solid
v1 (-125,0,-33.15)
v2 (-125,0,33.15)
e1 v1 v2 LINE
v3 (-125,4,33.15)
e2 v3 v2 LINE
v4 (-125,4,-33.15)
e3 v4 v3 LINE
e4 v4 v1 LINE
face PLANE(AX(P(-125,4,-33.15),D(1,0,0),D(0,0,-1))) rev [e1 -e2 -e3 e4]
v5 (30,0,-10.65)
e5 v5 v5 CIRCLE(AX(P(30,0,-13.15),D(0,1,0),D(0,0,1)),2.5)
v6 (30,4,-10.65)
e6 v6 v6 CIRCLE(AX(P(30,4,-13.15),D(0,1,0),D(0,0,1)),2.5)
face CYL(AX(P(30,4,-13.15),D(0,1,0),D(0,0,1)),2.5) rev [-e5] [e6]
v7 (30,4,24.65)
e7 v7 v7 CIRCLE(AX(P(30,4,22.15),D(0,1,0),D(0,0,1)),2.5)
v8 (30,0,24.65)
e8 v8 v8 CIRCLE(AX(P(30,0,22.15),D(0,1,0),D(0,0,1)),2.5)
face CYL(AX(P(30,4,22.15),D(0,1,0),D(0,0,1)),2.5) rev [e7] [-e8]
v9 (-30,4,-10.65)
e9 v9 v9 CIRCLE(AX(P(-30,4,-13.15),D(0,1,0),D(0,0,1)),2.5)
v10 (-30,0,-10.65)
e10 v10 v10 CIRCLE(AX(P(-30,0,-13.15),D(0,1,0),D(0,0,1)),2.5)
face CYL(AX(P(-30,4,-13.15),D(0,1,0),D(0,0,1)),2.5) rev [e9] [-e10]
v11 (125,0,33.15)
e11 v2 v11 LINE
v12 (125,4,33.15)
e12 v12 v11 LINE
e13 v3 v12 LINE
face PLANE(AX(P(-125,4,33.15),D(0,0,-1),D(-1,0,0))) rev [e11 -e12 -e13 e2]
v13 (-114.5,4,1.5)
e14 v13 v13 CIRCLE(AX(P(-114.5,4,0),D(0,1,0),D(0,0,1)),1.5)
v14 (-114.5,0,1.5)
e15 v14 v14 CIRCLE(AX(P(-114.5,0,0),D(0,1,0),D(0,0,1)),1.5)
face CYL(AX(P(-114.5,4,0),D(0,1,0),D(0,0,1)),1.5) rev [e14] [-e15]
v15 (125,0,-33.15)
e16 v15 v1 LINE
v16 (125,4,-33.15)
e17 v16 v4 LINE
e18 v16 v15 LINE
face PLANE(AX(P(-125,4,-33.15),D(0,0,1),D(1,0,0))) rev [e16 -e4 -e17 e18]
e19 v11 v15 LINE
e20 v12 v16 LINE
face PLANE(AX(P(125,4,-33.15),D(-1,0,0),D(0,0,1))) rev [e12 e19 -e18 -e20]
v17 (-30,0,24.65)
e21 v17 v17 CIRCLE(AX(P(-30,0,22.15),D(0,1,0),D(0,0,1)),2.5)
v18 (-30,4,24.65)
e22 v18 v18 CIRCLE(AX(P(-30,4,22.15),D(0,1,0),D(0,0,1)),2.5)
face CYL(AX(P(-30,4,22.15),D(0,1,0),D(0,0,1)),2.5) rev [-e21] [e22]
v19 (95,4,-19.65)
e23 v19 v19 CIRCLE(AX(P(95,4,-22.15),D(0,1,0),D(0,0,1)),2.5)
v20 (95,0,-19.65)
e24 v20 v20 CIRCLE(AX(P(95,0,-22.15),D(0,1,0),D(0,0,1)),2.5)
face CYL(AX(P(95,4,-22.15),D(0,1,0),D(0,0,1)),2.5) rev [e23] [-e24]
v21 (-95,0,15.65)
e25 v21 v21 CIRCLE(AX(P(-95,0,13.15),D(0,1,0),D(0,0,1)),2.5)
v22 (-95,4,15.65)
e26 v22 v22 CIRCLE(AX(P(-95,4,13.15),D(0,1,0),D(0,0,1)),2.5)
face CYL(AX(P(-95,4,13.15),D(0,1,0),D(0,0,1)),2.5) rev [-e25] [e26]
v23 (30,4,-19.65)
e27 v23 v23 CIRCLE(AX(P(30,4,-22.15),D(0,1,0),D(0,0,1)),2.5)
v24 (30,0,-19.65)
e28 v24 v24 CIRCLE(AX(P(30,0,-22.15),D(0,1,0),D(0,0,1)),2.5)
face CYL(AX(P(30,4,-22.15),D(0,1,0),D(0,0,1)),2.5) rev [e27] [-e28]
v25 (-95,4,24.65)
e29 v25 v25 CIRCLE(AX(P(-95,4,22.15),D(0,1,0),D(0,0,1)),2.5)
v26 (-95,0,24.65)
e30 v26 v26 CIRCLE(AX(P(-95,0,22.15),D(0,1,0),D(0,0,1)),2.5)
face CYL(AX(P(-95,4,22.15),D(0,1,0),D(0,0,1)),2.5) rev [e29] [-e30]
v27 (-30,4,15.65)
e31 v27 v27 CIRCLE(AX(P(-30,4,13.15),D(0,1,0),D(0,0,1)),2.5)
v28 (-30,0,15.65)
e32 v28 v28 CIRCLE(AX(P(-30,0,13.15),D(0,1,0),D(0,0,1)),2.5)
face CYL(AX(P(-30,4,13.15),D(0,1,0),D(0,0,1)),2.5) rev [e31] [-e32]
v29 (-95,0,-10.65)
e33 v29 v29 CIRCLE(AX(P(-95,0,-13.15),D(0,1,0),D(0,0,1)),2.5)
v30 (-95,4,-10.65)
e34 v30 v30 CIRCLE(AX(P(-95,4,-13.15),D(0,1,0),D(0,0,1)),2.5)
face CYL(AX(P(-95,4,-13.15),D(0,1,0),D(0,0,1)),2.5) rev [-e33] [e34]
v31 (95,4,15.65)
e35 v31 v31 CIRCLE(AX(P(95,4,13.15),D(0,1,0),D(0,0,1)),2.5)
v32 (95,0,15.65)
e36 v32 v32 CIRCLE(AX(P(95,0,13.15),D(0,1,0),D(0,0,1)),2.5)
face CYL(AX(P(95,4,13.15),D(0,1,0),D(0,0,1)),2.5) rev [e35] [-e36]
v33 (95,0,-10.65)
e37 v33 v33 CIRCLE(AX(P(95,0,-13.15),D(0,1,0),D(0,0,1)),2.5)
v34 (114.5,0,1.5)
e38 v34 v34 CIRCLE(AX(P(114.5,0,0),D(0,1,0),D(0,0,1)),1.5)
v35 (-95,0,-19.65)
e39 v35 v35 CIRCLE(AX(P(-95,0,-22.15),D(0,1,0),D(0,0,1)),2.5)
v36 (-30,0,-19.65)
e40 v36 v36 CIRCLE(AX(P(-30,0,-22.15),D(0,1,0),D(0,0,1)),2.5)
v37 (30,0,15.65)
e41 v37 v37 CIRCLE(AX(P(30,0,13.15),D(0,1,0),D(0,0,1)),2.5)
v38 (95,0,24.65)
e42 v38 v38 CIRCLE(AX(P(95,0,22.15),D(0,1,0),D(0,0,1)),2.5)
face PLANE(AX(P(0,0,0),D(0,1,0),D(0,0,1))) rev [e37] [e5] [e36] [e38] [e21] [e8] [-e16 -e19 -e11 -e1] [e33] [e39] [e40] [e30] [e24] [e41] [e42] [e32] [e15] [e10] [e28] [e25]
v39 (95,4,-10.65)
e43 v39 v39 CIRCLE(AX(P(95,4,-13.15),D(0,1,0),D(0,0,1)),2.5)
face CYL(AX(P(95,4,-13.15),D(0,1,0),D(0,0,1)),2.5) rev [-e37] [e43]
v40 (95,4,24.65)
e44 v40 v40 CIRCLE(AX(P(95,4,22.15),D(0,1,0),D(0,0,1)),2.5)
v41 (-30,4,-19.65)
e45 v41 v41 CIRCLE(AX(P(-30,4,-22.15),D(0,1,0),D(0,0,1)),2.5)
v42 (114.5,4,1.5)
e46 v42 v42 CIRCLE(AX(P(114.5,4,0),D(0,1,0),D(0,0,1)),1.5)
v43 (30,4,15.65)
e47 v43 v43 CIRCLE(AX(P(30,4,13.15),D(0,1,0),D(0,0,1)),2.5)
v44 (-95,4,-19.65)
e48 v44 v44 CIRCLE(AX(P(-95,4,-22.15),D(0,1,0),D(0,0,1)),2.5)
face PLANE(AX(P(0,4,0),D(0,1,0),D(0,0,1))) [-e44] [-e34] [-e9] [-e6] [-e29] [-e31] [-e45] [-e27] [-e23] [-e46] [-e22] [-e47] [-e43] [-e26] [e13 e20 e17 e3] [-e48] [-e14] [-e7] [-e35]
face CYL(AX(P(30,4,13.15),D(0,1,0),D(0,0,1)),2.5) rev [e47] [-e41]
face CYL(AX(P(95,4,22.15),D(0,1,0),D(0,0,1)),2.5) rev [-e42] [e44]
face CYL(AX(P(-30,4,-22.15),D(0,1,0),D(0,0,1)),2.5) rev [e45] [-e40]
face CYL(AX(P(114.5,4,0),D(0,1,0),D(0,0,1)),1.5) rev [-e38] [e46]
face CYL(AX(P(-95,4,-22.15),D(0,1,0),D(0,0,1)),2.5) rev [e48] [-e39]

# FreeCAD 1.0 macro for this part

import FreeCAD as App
import Part
import Sketcher
from FreeCAD import Vector
Q = App.Units.Quantity


def add_polygon(sketch, points):
    """Adds a closed chain of lines whose ends are joined by coincident constraints."""
    first, n = sketch.GeometryCount, len(points)
    for a, b in zip(points, points[1:] + points[:1]):
        sketch.addGeometry(Part.LineSegment(App.Vector(*a, 0), App.Vector(*b, 0)), False)
    for i in range(n):
        sketch.addConstraint(Sketcher.Constraint("Coincident", first + i, 2, first + (i + 1) % n, 1))

doc = App.newDocument("Part")
body = doc.addObject("PartDesign::Body", "Body")

# Sketch on XZ plane
sketch1 = body.newObject("Sketcher::SketchObject", "Sketch")
sketch1.AttachmentSupport = (doc.getObject("XZ_Plane"), [""])
sketch1.MapMode = "FlatFace"
add_polygon(sketch1, [(-125, -33), (-125, 33), (125, 33), (125, -33)])  # lines 0-3
sketch1.addConstraint([
    Sketcher.Constraint("Vertical", 0),
    Sketcher.Constraint("Horizontal", 1),
    Sketcher.Constraint("Vertical", 2),
    Sketcher.Constraint("Horizontal", 3),
    Sketcher.Constraint("Symmetric", 0, 2, 2, 2, -1, 1),
    Sketcher.Constraint("DistanceX", 1, 1, 1, 2, Q("250 mm")),
    Sketcher.Constraint("DistanceY", 0, 1, 0, 2, Q("66.3 mm")),
])
pad1 = body.newObject("PartDesign::Pad", "Pad")
pad1.Profile = sketch1
pad1.Length = 4
pad1.Reversed = True

# Sketch on YZ plane
sketch2 = body.newObject("Sketcher::SketchObject", "Sketch001")
sketch2.AttachmentSupport = (doc.getObject("YZ_Plane"), [""])
sketch2.MapMode = "FlatFace"
sketch2.AttachmentOffset = App.Placement(Vector(0, 0, -114.5), App.Rotation())
add_polygon(sketch2, [(-96.9, 0), (4, 0), (4, 1.5), (-96, 1.5)])  # lines 0-3
sketch2.addConstraint([
    Sketcher.Constraint("Horizontal", 0),
    Sketcher.Constraint("Vertical", 1),
    Sketcher.Constraint("Horizontal", 2),
    Sketcher.Constraint("PointOnObject", 0, 2, -1),
    Sketcher.Constraint("DistanceX", 2, 2, 2, 1, Q("100 mm")),
    Sketcher.Constraint("Angle", 3, Q("-121 deg")),
    Sketcher.Constraint("DistanceY", 1, 1, 1, 2, Q("1.5 mm")),
    Sketcher.Constraint("DistanceX", -1, 1, 0, 2, Q("4 mm")),
])
groove = body.newObject("PartDesign::Groove", "Groove")
groove.Profile = sketch2
groove.ReferenceAxis = (sketch2, ["H_Axis"])
groove.Angle = 360

# Sketch on YZ plane
sketch3 = body.newObject("Sketcher::SketchObject", "Sketch002")
sketch3.AttachmentSupport = (doc.getObject("YZ_Plane"), [""])
sketch3.MapMode = "FlatFace"
sketch3.AttachmentOffset = App.Placement(Vector(0, 0, -95), App.Rotation())
add_polygon(sketch3, [(-47.5, -22.1), (4, -22.1), (4, -19.6), (-46, -19.6)])  # lines 0-3
sketch3.addGeometry(Part.LineSegment(Vector(4, -22.1, 0), Vector(-47.5, -22.1, 0)), True)  # axis
sketch3.addConstraint([
    Sketcher.Constraint("Horizontal", 0),
    Sketcher.Constraint("Vertical", 1),
    Sketcher.Constraint("Horizontal", 2),
    Sketcher.Constraint("Horizontal", 4),
    Sketcher.Constraint("Coincident", 4, 1, 0, 2),
    Sketcher.Constraint("Equal", 0, 4),
    Sketcher.Constraint("DistanceX", 2, 2, 2, 1, Q("50 mm")),
    Sketcher.Constraint("Angle", 3, Q("-121 deg")),
    Sketcher.Constraint("DistanceY", 1, 1, 1, 2, Q("2.5 mm")),
    Sketcher.Constraint("DistanceX", -1, 1, 0, 2, Q("4 mm")),
    Sketcher.Constraint("DistanceY", 0, 2, -1, 1, Q("22.15 mm")),
])
groove2 = body.newObject("PartDesign::Groove", "Groove001")
groove2.Profile = sketch3
groove2.ReferenceAxis = (sketch3, ["Axis0"])
groove2.Angle = 360
doc.recompute()

linearpattern = body.newObject("PartDesign::LinearPattern", "LinearPattern")
linearpattern.Originals = [groove2]
linearpattern.Direction = (doc.getObject("Z_Axis"), [""])
linearpattern.Mode = "offset"
linearpattern.Offset = 9
linearpattern.Occurrences = 2
body.Tip = linearpattern
doc.recompute()

linearpattern2 = body.newObject("PartDesign::LinearPattern", "LinearPattern001")
linearpattern2.Originals = [groove2]
linearpattern2.Direction = (doc.getObject("X_Axis"), [""])
linearpattern2.Mode = "offset"
linearpattern2.Offset = 65
linearpattern2.Occurrences = 2
body.Tip = linearpattern2

# Sketch on YZ plane
sketch4 = body.newObject("Sketcher::SketchObject", "Sketch003")
sketch4.AttachmentSupport = (doc.getObject("YZ_Plane"), [""])
sketch4.MapMode = "FlatFace"
sketch4.AttachmentOffset = App.Placement(Vector(0, 0, -30), App.Rotation())
add_polygon(sketch4, [(-47.5, -13.2), (4, -13.2), (4, -10.7), (-46, -10.7)])  # lines 0-3
sketch4.addGeometry(Part.LineSegment(Vector(4, -13.2, 0), Vector(-47.5, -13.2, 0)), True)  # axis
sketch4.addConstraint([
    Sketcher.Constraint("Horizontal", 0),
    Sketcher.Constraint("Vertical", 1),
    Sketcher.Constraint("Horizontal", 2),
    Sketcher.Constraint("Horizontal", 4),
    Sketcher.Constraint("Coincident", 4, 1, 0, 2),
    Sketcher.Constraint("Equal", 0, 4),
    Sketcher.Constraint("DistanceX", 2, 2, 2, 1, Q("50 mm")),
    Sketcher.Constraint("Angle", 3, Q("-121 deg")),
    Sketcher.Constraint("DistanceY", 1, 1, 1, 2, Q("2.5 mm")),
    Sketcher.Constraint("DistanceX", -1, 1, 0, 2, Q("4 mm")),
    Sketcher.Constraint("DistanceY", 0, 2, -1, 1, Q("13.15 mm")),
])
groove3 = body.newObject("PartDesign::Groove", "Groove002")
groove3.Profile = sketch4
groove3.ReferenceAxis = (sketch4, ["Axis0"])
groove3.Angle = 360
doc.recompute()

mirrored = body.newObject("PartDesign::Mirrored", "Mirrored")
mirrored.Originals = [groove, groove2]
mirrored.MirrorPlane = (doc.getObject("YZ_Plane"), [""])
body.Tip = mirrored

# Sketch on YZ plane
sketch5 = body.newObject("Sketcher::SketchObject", "Sketch004")
sketch5.AttachmentSupport = (doc.getObject("YZ_Plane"), [""])
sketch5.MapMode = "FlatFace"
sketch5.AttachmentOffset = App.Placement(Vector(0, 0, 95), App.Rotation())
add_polygon(sketch5, [(4, -13.2), (-47.5, -13.2), (-46, -10.7), (4, -10.7)])  # lines 0-3
sketch5.addGeometry(Part.LineSegment(Vector(-47.5, -13.2, 0), Vector(4, -13.2, 0)), True)  # axis
sketch5.addConstraint([
    Sketcher.Constraint("Horizontal", 0),
    Sketcher.Constraint("Horizontal", 2),
    Sketcher.Constraint("Vertical", 3),
    Sketcher.Constraint("Horizontal", 4),
    Sketcher.Constraint("Coincident", 4, 1, 0, 2),
    Sketcher.Constraint("Vertical", 2, 2, 4, 2),
    Sketcher.Constraint("DistanceX", 2, 1, 2, 2, Q("50 mm")),
    Sketcher.Constraint("Angle", 1, Q("59 deg")),
    Sketcher.Constraint("DistanceY", 3, 2, 3, 1, Q("2.5 mm")),
    Sketcher.Constraint("DistanceX", 1, 2, -1, 1, Q("46 mm")),
    Sketcher.Constraint("DistanceY", 0, 2, -1, 1, Q("13.15 mm")),
])
groove4 = body.newObject("PartDesign::Groove", "Groove003")
groove4.Profile = sketch5
groove4.ReferenceAxis = (sketch5, ["Axis0"])
groove4.Angle = 360

# Sketch on YZ plane
sketch6 = body.newObject("Sketcher::SketchObject", "Sketch005")
sketch6.AttachmentSupport = (doc.getObject("YZ_Plane"), [""])
sketch6.MapMode = "FlatFace"
sketch6.AttachmentOffset = App.Placement(Vector(0, 0, 30), App.Rotation())
add_polygon(sketch6, [(4, -22.1), (-47.5, -22.1), (-46, -19.6), (4, -19.6)])  # lines 0-3
sketch6.addGeometry(Part.LineSegment(Vector(-47.5, -22.1, 0), Vector(4, -22.1, 0)), True)  # axis
sketch6.addConstraint([
    Sketcher.Constraint("Horizontal", 0),
    Sketcher.Constraint("Horizontal", 2),
    Sketcher.Constraint("Vertical", 3),
    Sketcher.Constraint("Horizontal", 4),
    Sketcher.Constraint("Coincident", 4, 1, 0, 2),
    Sketcher.Constraint("Vertical", 2, 2, 4, 2),
    Sketcher.Constraint("DistanceX", 2, 1, 2, 2, Q("50 mm")),
    Sketcher.Constraint("Angle", 1, Q("59 deg")),
    Sketcher.Constraint("DistanceY", 3, 2, 3, 1, Q("2.5 mm")),
    Sketcher.Constraint("DistanceX", 1, 2, -1, 1, Q("46 mm")),
    Sketcher.Constraint("DistanceY", 0, 2, -1, 1, Q("22.15 mm")),
])
groove5 = body.newObject("PartDesign::Groove", "Groove004")
groove5.Profile = sketch6
groove5.ReferenceAxis = (sketch6, ["Axis0"])
groove5.Angle = 360

# Sketch on YZ plane
sketch7 = body.newObject("Sketcher::SketchObject", "Sketch006")
sketch7.AttachmentSupport = (doc.getObject("YZ_Plane"), [""])
sketch7.MapMode = "FlatFace"
sketch7.AttachmentOffset = App.Placement(Vector(0, 0, 30), App.Rotation())
add_polygon(sketch7, [(4, -13.2), (-47.5, -13.2), (-46, -10.7), (4, -10.7)])  # lines 0-3
sketch7.addGeometry(Part.LineSegment(Vector(-47.5, -13.2, 0), Vector(4, -13.2, 0)), True)  # axis
sketch7.addConstraint([
    Sketcher.Constraint("Horizontal", 0),
    Sketcher.Constraint("Horizontal", 2),
    Sketcher.Constraint("Vertical", 3),
    Sketcher.Constraint("Horizontal", 4),
    Sketcher.Constraint("Coincident", 4, 1, 0, 2),
    Sketcher.Constraint("Vertical", 2, 2, 4, 2),
    Sketcher.Constraint("DistanceX", 2, 1, 2, 2, Q("50 mm")),
    Sketcher.Constraint("Angle", 1, Q("59 deg")),
    Sketcher.Constraint("DistanceY", 3, 2, 3, 1, Q("2.5 mm")),
    Sketcher.Constraint("DistanceX", 1, 2, -1, 1, Q("46 mm")),
    Sketcher.Constraint("DistanceY", 0, 2, -1, 1, Q("13.15 mm")),
])
groove6 = body.newObject("PartDesign::Groove", "Groove005")
groove6.Profile = sketch7
groove6.ReferenceAxis = (sketch7, ["Axis0"])
groove6.Angle = 360
doc.recompute()

mirrored2 = body.newObject("PartDesign::Mirrored", "Mirrored001")
mirrored2.Originals = [groove2]
mirrored2.MirrorPlane = (doc.getObject("XY_Plane"), [""])
body.Tip = mirrored2

# Sketch on YZ plane
sketch8 = body.newObject("Sketcher::SketchObject", "Sketch007")
sketch8.AttachmentSupport = (doc.getObject("YZ_Plane"), [""])
sketch8.MapMode = "FlatFace"
sketch8.AttachmentOffset = App.Placement(Vector(0, 0, -95), App.Rotation())
add_polygon(sketch8, [(4, 13.2), (-47.5, 13.2), (-46, 10.7), (4, 10.7)])  # lines 0-3
sketch8.addGeometry(Part.LineSegment(Vector(-47.5, 13.2, 0), Vector(4, 13.2, 0)), True)  # axis
sketch8.addConstraint([
    Sketcher.Constraint("Horizontal", 0),
    Sketcher.Constraint("Horizontal", 2),
    Sketcher.Constraint("Vertical", 3),
    Sketcher.Constraint("Horizontal", 4),
    Sketcher.Constraint("Coincident", 4, 1, 0, 2),
    Sketcher.Constraint("Vertical", 2, 2, 4, 2),
    Sketcher.Constraint("DistanceX", 2, 1, 2, 2, Q("50 mm")),
    Sketcher.Constraint("Angle", 1, Q("-59 deg")),
    Sketcher.Constraint("DistanceY", 3, 1, 3, 2, Q("2.5 mm")),
    Sketcher.Constraint("DistanceX", 1, 2, -1, 1, Q("46 mm")),
    Sketcher.Constraint("DistanceY", -1, 1, 0, 2, Q("13.15 mm")),
])
groove7 = body.newObject("PartDesign::Groove", "Groove006")
groove7.Profile = sketch8
groove7.ReferenceAxis = (sketch8, ["Axis0"])
groove7.Angle = 360

# Sketch on YZ plane
sketch9 = body.newObject("Sketcher::SketchObject", "Sketch008")
sketch9.AttachmentSupport = (doc.getObject("YZ_Plane"), [""])
sketch9.MapMode = "FlatFace"
sketch9.AttachmentOffset = App.Placement(Vector(0, 0, -30), App.Rotation())
add_polygon(sketch9, [(4, 22.1), (-47.5, 22.1), (-46, 19.6), (4, 19.6)])  # lines 0-3
sketch9.addGeometry(Part.LineSegment(Vector(-47.5, 22.1, 0), Vector(4, 22.1, 0)), True)  # axis
sketch9.addConstraint([
    Sketcher.Constraint("Horizontal", 0),
    Sketcher.Constraint("Horizontal", 2),
    Sketcher.Constraint("Vertical", 3),
    Sketcher.Constraint("Horizontal", 4),
    Sketcher.Constraint("Coincident", 4, 1, 0, 2),
    Sketcher.Constraint("Vertical", 2, 2, 4, 2),
    Sketcher.Constraint("DistanceX", 2, 1, 2, 2, Q("50 mm")),
    Sketcher.Constraint("Angle", 1, Q("-59 deg")),
    Sketcher.Constraint("DistanceY", 3, 1, 3, 2, Q("2.5 mm")),
    Sketcher.Constraint("DistanceX", 1, 2, -1, 1, Q("46 mm")),
    Sketcher.Constraint("DistanceY", -1, 1, 0, 2, Q("22.15 mm")),
])
groove8 = body.newObject("PartDesign::Groove", "Groove007")
groove8.Profile = sketch9
groove8.ReferenceAxis = (sketch9, ["Axis0"])
groove8.Angle = 360

# Sketch on YZ plane
sketch10 = body.newObject("Sketcher::SketchObject", "Sketch009")
sketch10.AttachmentSupport = (doc.getObject("YZ_Plane"), [""])
sketch10.MapMode = "FlatFace"
sketch10.AttachmentOffset = App.Placement(Vector(0, 0, -30), App.Rotation())
add_polygon(sketch10, [(4, 13.2), (-47.5, 13.2), (-46, 10.7), (4, 10.7)])  # lines 0-3
sketch10.addGeometry(Part.LineSegment(Vector(-47.5, 13.2, 0), Vector(4, 13.2, 0)), True)  # axis
sketch10.addConstraint([
    Sketcher.Constraint("Horizontal", 0),
    Sketcher.Constraint("Horizontal", 2),
    Sketcher.Constraint("Vertical", 3),
    Sketcher.Constraint("Horizontal", 4),
    Sketcher.Constraint("Coincident", 4, 1, 0, 2),
    Sketcher.Constraint("Vertical", 2, 2, 4, 2),
    Sketcher.Constraint("DistanceX", 2, 1, 2, 2, Q("50 mm")),
    Sketcher.Constraint("Angle", 1, Q("-59 deg")),
    Sketcher.Constraint("DistanceY", 3, 1, 3, 2, Q("2.5 mm")),
    Sketcher.Constraint("DistanceX", 1, 2, -1, 1, Q("46 mm")),
    Sketcher.Constraint("DistanceY", -1, 1, 0, 2, Q("13.15 mm")),
])
groove9 = body.newObject("PartDesign::Groove", "Groove008")
groove9.Profile = sketch10
groove9.ReferenceAxis = (sketch10, ["Axis0"])
groove9.Angle = 360

# Sketch on YZ plane
sketch11 = body.newObject("Sketcher::SketchObject", "Sketch010")
sketch11.AttachmentSupport = (doc.getObject("YZ_Plane"), [""])
sketch11.MapMode = "FlatFace"
sketch11.AttachmentOffset = App.Placement(Vector(0, 0, 114.5), App.Rotation())
add_polygon(sketch11, [(-96.9, 0), (4, 0), (4, -1.5), (-96, -1.5)])  # lines 0-3
sketch11.addConstraint([
    Sketcher.Constraint("Horizontal", 0),
    Sketcher.Constraint("Vertical", 1),
    Sketcher.Constraint("Horizontal", 2),
    Sketcher.Constraint("PointOnObject", 0, 2, -1),
    Sketcher.Constraint("DistanceX", 2, 2, 2, 1, Q("100 mm")),
    Sketcher.Constraint("Angle", 3, Q("121 deg")),
    Sketcher.Constraint("DistanceY", 1, 2, 1, 1, Q("1.5 mm")),
    Sketcher.Constraint("DistanceX", -1, 1, 0, 2, Q("4 mm")),
])
groove10 = body.newObject("PartDesign::Groove", "Groove009")
groove10.Profile = sketch11
groove10.ReferenceAxis = (sketch11, ["H_Axis"])
groove10.Angle = 360

# Sketch on YZ plane
sketch12 = body.newObject("Sketcher::SketchObject", "Sketch011")
sketch12.AttachmentSupport = (doc.getObject("YZ_Plane"), [""])
sketch12.MapMode = "FlatFace"
sketch12.AttachmentOffset = App.Placement(Vector(0, 0, 95), App.Rotation())
add_polygon(sketch12, [(-47.5, 22.1), (4, 22.1), (4, 19.6), (-46, 19.6)])  # lines 0-3
sketch12.addGeometry(Part.LineSegment(Vector(4, 22.1, 0), Vector(-47.5, 22.1, 0)), True)  # axis
sketch12.addConstraint([
    Sketcher.Constraint("Horizontal", 0),
    Sketcher.Constraint("Vertical", 1),
    Sketcher.Constraint("Horizontal", 2),
    Sketcher.Constraint("Horizontal", 4),
    Sketcher.Constraint("Coincident", 4, 1, 0, 2),
    Sketcher.Constraint("Equal", 0, 4),
    Sketcher.Constraint("DistanceX", 2, 2, 2, 1, Q("50 mm")),
    Sketcher.Constraint("Angle", 3, Q("121 deg")),
    Sketcher.Constraint("DistanceY", 1, 2, 1, 1, Q("2.5 mm")),
    Sketcher.Constraint("DistanceX", -1, 1, 0, 2, Q("4 mm")),
    Sketcher.Constraint("DistanceY", -1, 1, 0, 2, Q("22.15 mm")),
])
groove11 = body.newObject("PartDesign::Groove", "Groove010")
groove11.Profile = sketch12
groove11.ReferenceAxis = (sketch12, ["Axis0"])
groove11.Angle = 360

# Sketch on YZ plane
sketch13 = body.newObject("Sketcher::SketchObject", "Sketch012")
sketch13.AttachmentSupport = (doc.getObject("YZ_Plane"), [""])
sketch13.MapMode = "FlatFace"
sketch13.AttachmentOffset = App.Placement(Vector(0, 0, 95), App.Rotation())
add_polygon(sketch13, [(-47.5, 13.2), (4, 13.2), (4, 10.7), (-46, 10.7)])  # lines 0-3
sketch13.addGeometry(Part.LineSegment(Vector(4, 13.2, 0), Vector(-47.5, 13.2, 0)), True)  # axis
sketch13.addConstraint([
    Sketcher.Constraint("Horizontal", 0),
    Sketcher.Constraint("Vertical", 1),
    Sketcher.Constraint("Horizontal", 2),
    Sketcher.Constraint("Horizontal", 4),
    Sketcher.Constraint("Coincident", 4, 1, 0, 2),
    Sketcher.Constraint("Equal", 0, 4),
    Sketcher.Constraint("DistanceX", 2, 2, 2, 1, Q("50 mm")),
    Sketcher.Constraint("Angle", 3, Q("121 deg")),
    Sketcher.Constraint("DistanceY", 1, 2, 1, 1, Q("2.5 mm")),
    Sketcher.Constraint("DistanceX", -1, 1, 0, 2, Q("4 mm")),
    Sketcher.Constraint("DistanceY", -1, 1, 0, 2, Q("13.15 mm")),
])
groove12 = body.newObject("PartDesign::Groove", "Groove011")
groove12.Profile = sketch13
groove12.ReferenceAxis = (sketch13, ["Axis0"])
groove12.Angle = 360

# Sketch on YZ plane
sketch14 = body.newObject("Sketcher::SketchObject", "Sketch013")
sketch14.AttachmentSupport = (doc.getObject("YZ_Plane"), [""])
sketch14.MapMode = "FlatFace"
sketch14.AttachmentOffset = App.Placement(Vector(0, 0, 30), App.Rotation())
add_polygon(sketch14, [(-47.5, 22.1), (4, 22.1), (4, 19.6), (-46, 19.6)])  # lines 0-3
sketch14.addGeometry(Part.LineSegment(Vector(4, 22.1, 0), Vector(-47.5, 22.1, 0)), True)  # axis
sketch14.addConstraint([
    Sketcher.Constraint("Horizontal", 0),
    Sketcher.Constraint("Vertical", 1),
    Sketcher.Constraint("Horizontal", 2),
    Sketcher.Constraint("Horizontal", 4),
    Sketcher.Constraint("Coincident", 4, 1, 0, 2),
    Sketcher.Constraint("Equal", 0, 4),
    Sketcher.Constraint("DistanceX", 2, 2, 2, 1, Q("50 mm")),
    Sketcher.Constraint("Angle", 3, Q("121 deg")),
    Sketcher.Constraint("DistanceY", 1, 2, 1, 1, Q("2.5 mm")),
    Sketcher.Constraint("DistanceX", -1, 1, 0, 2, Q("4 mm")),
    Sketcher.Constraint("DistanceY", -1, 1, 0, 2, Q("22.15 mm")),
])
groove13 = body.newObject("PartDesign::Groove", "Groove012")
groove13.Profile = sketch14
groove13.ReferenceAxis = (sketch14, ["Axis0"])
groove13.Angle = 360

# Sketch on YZ plane
sketch15 = body.newObject("Sketcher::SketchObject", "Sketch014")
sketch15.AttachmentSupport = (doc.getObject("YZ_Plane"), [""])
sketch15.MapMode = "FlatFace"
sketch15.AttachmentOffset = App.Placement(Vector(0, 0, 30), App.Rotation())
add_polygon(sketch15, [(-47.5, 13.2), (4, 13.2), (4, 10.7), (-46, 10.7)])  # lines 0-3
sketch15.addGeometry(Part.LineSegment(Vector(4, 13.2, 0), Vector(-47.5, 13.2, 0)), True)  # axis
sketch15.addConstraint([
    Sketcher.Constraint("Horizontal", 0),
    Sketcher.Constraint("Vertical", 1),
    Sketcher.Constraint("Horizontal", 2),
    Sketcher.Constraint("Horizontal", 4),
    Sketcher.Constraint("Coincident", 4, 1, 0, 2),
    Sketcher.Constraint("Equal", 0, 4),
    Sketcher.Constraint("DistanceX", 2, 2, 2, 1, Q("50 mm")),
    Sketcher.Constraint("Angle", 3, Q("121 deg")),
    Sketcher.Constraint("DistanceY", 1, 2, 1, 1, Q("2.5 mm")),
    Sketcher.Constraint("DistanceX", -1, 1, 0, 2, Q("4 mm")),
    Sketcher.Constraint("DistanceY", -1, 1, 0, 2, Q("13.15 mm")),
])
groove14 = body.newObject("PartDesign::Groove", "Groove013")
groove14.Profile = sketch15
groove14.ReferenceAxis = (sketch15, ["Axis0"])
groove14.Angle = 360

# Sketch on YZ plane
sketch16 = body.newObject("Sketcher::SketchObject", "Sketch015")
sketch16.AttachmentSupport = (doc.getObject("YZ_Plane"), [""])
sketch16.MapMode = "FlatFace"
sketch16.AttachmentOffset = App.Placement(Vector(0, 0, -114.5), App.Rotation())
add_polygon(sketch16, [(4, 0), (-96.9, 0), (-96, -1.5), (4, -1.5)])  # lines 0-3
sketch16.addConstraint([
    Sketcher.Constraint("Horizontal", 0),
    Sketcher.Constraint("Horizontal", 2),
    Sketcher.Constraint("Vertical", 3),
    Sketcher.Constraint("PointOnObject", 0, 2, -1),
    Sketcher.Constraint("DistanceX", 2, 1, 2, 2, Q("100 mm")),
    Sketcher.Constraint("Angle", 1, Q("-59 deg")),
    Sketcher.Constraint("DistanceY", 3, 1, 3, 2, Q("1.5 mm")),
    Sketcher.Constraint("DistanceX", 1, 2, -1, 1, Q("96 mm")),
])
groove15 = body.newObject("PartDesign::Groove", "Groove014")
groove15.Profile = sketch16
groove15.ReferenceAxis = (sketch16, ["H_Axis"])
groove15.Angle = 360

doc.recompute()
